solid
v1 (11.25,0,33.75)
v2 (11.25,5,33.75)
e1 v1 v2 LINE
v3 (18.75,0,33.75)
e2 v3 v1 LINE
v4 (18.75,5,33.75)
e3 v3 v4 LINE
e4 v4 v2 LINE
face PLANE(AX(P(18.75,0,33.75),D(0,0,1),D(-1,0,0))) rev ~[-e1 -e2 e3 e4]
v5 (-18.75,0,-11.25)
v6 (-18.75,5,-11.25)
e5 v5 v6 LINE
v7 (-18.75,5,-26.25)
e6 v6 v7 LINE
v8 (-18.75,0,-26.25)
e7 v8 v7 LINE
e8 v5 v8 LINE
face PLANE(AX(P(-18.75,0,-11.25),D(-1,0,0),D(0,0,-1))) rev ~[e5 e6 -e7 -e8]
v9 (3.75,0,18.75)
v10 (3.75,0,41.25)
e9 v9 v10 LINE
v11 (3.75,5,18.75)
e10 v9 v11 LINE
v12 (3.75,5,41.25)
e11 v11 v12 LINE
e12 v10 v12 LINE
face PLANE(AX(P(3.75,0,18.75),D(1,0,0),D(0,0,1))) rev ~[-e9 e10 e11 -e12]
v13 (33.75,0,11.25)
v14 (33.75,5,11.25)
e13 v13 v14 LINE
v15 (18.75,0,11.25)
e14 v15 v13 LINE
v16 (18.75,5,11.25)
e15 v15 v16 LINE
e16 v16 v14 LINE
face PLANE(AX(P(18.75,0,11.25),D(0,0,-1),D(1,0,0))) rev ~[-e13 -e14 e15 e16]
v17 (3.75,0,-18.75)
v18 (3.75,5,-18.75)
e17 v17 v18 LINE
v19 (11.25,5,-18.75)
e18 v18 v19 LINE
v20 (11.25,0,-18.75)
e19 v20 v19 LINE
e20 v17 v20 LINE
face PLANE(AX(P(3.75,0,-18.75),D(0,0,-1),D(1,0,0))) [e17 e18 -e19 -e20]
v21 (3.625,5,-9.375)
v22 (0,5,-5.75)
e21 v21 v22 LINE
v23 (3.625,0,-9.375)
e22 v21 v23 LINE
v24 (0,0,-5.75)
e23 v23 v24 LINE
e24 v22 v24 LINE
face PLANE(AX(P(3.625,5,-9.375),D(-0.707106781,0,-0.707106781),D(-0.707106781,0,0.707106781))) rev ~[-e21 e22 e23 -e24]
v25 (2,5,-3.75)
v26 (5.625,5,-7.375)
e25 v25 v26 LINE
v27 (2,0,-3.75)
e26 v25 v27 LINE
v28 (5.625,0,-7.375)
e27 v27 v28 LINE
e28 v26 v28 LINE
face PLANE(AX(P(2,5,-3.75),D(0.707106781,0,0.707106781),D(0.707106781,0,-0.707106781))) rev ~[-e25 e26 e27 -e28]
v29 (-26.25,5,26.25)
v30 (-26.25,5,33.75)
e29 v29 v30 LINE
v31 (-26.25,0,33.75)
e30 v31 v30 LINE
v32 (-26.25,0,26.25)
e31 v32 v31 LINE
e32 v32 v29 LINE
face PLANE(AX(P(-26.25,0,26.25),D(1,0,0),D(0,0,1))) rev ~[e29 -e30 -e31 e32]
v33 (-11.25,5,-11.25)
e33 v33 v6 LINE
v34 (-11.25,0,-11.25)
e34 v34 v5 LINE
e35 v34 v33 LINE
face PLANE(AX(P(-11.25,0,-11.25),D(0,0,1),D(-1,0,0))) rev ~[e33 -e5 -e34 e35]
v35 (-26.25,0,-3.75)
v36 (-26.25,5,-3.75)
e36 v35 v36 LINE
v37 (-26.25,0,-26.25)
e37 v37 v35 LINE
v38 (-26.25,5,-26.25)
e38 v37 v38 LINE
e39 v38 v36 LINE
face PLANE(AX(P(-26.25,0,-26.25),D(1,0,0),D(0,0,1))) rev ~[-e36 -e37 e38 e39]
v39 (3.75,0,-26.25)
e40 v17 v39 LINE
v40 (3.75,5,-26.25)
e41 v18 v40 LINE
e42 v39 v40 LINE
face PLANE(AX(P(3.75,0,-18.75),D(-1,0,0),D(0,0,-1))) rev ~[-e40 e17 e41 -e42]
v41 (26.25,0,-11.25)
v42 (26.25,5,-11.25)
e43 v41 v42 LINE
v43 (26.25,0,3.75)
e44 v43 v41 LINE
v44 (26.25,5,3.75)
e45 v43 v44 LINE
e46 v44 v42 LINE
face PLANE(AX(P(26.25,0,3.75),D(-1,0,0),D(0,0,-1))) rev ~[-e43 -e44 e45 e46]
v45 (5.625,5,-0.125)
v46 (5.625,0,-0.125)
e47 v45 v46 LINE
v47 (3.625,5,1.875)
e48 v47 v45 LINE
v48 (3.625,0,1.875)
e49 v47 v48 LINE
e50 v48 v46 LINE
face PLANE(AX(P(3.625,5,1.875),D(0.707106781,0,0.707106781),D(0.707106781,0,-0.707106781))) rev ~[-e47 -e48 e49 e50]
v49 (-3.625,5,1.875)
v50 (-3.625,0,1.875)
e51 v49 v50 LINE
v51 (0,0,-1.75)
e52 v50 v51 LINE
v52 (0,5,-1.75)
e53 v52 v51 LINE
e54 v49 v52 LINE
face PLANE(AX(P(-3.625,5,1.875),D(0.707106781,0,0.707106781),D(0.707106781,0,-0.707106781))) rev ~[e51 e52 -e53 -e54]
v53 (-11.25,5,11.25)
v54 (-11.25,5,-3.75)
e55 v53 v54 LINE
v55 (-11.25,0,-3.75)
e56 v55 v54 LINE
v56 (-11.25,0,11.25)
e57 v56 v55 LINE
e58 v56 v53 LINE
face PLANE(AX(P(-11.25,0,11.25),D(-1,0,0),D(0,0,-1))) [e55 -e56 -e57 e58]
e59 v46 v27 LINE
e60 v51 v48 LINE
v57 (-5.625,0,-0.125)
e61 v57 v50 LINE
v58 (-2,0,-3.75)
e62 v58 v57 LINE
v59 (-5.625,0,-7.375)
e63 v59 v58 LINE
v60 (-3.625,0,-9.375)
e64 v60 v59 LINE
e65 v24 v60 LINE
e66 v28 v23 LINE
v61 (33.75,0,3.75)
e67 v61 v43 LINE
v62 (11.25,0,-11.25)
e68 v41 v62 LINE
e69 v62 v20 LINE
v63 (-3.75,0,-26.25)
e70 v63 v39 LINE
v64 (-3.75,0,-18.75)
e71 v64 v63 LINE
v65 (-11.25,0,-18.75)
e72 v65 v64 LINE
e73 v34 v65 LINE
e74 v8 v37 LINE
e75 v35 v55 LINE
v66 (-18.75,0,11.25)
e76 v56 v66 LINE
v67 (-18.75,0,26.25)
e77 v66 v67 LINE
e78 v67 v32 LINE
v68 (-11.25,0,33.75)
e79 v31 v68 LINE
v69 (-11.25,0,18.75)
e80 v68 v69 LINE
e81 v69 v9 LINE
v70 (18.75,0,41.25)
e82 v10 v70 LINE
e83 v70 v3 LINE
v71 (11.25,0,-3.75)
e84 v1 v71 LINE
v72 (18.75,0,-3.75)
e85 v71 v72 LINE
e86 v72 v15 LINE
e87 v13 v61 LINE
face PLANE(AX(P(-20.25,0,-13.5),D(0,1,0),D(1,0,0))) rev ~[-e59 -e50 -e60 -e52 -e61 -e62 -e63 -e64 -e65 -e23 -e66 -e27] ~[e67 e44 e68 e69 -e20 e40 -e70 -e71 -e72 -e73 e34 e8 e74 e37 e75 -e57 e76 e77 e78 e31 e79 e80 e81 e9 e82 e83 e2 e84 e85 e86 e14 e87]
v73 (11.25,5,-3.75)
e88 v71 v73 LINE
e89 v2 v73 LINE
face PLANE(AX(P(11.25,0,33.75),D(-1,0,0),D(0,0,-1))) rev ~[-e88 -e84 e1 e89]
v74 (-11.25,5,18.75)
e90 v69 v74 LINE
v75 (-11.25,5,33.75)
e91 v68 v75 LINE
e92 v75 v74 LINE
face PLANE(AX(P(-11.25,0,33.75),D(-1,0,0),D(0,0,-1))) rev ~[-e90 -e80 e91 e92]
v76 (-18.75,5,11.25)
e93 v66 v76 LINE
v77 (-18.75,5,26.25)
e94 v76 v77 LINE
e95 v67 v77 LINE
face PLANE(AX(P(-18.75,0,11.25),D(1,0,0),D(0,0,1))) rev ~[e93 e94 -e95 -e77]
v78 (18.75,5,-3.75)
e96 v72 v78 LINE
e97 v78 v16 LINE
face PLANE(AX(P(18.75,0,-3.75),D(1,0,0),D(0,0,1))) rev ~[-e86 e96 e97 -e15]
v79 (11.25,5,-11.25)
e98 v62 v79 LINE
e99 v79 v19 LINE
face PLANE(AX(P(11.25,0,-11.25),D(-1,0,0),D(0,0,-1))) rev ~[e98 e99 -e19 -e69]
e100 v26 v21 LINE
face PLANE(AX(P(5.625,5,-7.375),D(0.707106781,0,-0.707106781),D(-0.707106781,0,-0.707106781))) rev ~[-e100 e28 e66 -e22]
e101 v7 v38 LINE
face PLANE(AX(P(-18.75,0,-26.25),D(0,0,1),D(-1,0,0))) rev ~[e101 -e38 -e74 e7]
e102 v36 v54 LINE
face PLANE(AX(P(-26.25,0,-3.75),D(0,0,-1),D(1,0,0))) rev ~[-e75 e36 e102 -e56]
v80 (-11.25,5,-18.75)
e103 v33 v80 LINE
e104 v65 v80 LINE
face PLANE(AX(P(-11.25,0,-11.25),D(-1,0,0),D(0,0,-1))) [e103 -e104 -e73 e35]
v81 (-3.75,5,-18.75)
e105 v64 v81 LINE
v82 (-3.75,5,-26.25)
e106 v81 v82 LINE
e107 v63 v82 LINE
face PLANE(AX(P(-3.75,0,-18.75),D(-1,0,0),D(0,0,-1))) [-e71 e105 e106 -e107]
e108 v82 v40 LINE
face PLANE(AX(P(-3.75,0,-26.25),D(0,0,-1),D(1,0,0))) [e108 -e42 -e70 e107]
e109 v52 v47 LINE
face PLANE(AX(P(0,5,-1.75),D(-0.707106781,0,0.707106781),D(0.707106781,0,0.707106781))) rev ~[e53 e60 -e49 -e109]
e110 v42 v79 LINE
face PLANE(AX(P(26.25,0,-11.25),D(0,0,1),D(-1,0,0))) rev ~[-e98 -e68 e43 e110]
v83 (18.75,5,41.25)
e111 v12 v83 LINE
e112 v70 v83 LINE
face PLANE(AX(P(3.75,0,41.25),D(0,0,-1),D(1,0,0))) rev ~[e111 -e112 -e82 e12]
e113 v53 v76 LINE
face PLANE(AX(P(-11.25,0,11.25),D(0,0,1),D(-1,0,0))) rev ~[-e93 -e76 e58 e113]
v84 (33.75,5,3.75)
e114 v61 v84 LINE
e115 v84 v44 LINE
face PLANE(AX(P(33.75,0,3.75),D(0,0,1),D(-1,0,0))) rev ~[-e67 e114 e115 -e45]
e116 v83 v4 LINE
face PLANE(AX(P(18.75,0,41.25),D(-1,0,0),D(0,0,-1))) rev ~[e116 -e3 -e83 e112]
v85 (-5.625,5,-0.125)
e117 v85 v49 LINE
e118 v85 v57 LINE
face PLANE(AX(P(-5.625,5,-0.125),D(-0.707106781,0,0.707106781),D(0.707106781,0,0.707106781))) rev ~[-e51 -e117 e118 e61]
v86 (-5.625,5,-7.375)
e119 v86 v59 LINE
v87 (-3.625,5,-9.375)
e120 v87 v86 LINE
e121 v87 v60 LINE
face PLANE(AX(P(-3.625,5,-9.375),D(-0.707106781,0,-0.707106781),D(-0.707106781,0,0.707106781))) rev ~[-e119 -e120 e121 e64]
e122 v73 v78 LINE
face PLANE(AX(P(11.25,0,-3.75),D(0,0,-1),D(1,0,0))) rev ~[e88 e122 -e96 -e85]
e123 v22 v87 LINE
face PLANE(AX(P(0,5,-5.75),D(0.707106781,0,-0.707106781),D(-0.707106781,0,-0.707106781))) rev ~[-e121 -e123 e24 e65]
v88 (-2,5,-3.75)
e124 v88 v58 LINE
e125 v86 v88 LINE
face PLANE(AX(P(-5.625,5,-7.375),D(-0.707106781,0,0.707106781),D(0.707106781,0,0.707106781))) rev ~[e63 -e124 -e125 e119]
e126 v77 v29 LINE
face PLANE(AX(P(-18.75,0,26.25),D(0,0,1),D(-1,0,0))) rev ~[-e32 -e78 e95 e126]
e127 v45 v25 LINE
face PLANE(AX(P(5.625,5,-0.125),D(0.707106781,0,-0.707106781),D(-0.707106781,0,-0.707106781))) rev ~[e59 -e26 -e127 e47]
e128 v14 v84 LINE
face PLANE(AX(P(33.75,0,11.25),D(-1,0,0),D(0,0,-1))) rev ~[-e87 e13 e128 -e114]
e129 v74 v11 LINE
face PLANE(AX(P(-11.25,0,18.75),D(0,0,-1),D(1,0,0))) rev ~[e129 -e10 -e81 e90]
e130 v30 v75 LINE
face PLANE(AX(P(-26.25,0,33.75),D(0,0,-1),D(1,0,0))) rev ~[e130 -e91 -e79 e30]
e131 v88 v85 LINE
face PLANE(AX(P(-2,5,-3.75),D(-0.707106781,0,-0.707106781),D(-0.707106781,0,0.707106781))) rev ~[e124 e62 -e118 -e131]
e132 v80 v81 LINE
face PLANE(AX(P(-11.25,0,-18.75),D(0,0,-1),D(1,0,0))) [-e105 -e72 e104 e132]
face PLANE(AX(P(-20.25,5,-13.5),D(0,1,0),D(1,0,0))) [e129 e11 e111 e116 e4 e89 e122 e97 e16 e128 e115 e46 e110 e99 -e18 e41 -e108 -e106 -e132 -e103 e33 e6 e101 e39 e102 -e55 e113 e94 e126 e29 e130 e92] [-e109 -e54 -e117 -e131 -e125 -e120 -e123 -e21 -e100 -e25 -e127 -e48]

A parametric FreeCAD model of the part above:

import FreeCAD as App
import Part
import Sketcher


def add_polygon(sketch, points):
    """Adds a closed chain of lines whose ends are joined by coincident constraints."""
    first, n = sketch.GeometryCount, len(points)
    for a, b in zip(points, points[1:] + points[:1]):
        sketch.addGeometry(Part.LineSegment(App.Vector(*a, 0), App.Vector(*b, 0)), False)
    for i in range(n):
        sketch.addConstraint(Sketcher.Constraint("Coincident", first + i, 2, first + (i + 1) % n, 1))

doc = App.newDocument("Part")
body = doc.addObject("PartDesign::Body", "Body")

sketch1 = body.newObject("Sketcher::SketchObject", "Sketch")
sketch1.AttachmentSupport = (doc.getObject("XZ_Plane"), [""])
sketch1.MapMode = "FlatFace"
add_polygon(sketch1, [(-11, -11), (-19, -11), (-19, -26), (-26, -26), (-26, -4), (-11, -4), (-11, 11), (-19, 11), (-19, 26), (-26, 26), (-26, 34), (-11, 34), (-11, 19), (4, 19), (4, 41), (19, 41), (19, 34), (11, 34), (11, -4), (19, -4), (19, 11), (34, 11), (34, 4), (26, 4), (26, -11), (11, -11), (11, -19), (4, -19), (4, -26), (-4, -26), (-4, -19), (-11, -19)])
sketch1.addConstraint(Sketcher.Constraint("Horizontal", 0))
sketch1.addConstraint(Sketcher.Constraint("Vertical", 1))
sketch1.addConstraint(Sketcher.Constraint("Horizontal", 2))
sketch1.addConstraint(Sketcher.Constraint("Vertical", 3))
sketch1.addConstraint(Sketcher.Constraint("Horizontal", 4))
sketch1.addConstraint(Sketcher.Constraint("Vertical", 5))
sketch1.addConstraint(Sketcher.Constraint("Horizontal", 6))
sketch1.addConstraint(Sketcher.Constraint("Vertical", 7))
sketch1.addConstraint(Sketcher.Constraint("Horizontal", 8))
sketch1.addConstraint(Sketcher.Constraint("Vertical", 9))
sketch1.addConstraint(Sketcher.Constraint("Horizontal", 10))
sketch1.addConstraint(Sketcher.Constraint("Vertical", 11))
sketch1.addConstraint(Sketcher.Constraint("Horizontal", 12))
sketch1.addConstraint(Sketcher.Constraint("Vertical", 13))
sketch1.addConstraint(Sketcher.Constraint("Horizontal", 14))
sketch1.addConstraint(Sketcher.Constraint("Vertical", 15))
sketch1.addConstraint(Sketcher.Constraint("Horizontal", 16))
sketch1.addConstraint(Sketcher.Constraint("Vertical", 17))
sketch1.addConstraint(Sketcher.Constraint("Horizontal", 18))
sketch1.addConstraint(Sketcher.Constraint("Vertical", 19))
sketch1.addConstraint(Sketcher.Constraint("Horizontal", 20))
sketch1.addConstraint(Sketcher.Constraint("Vertical", 21))
sketch1.addConstraint(Sketcher.Constraint("Horizontal", 22))
sketch1.addConstraint(Sketcher.Constraint("Vertical", 23))
sketch1.addConstraint(Sketcher.Constraint("Horizontal", 24))
sketch1.addConstraint(Sketcher.Constraint("Vertical", 25))
sketch1.addConstraint(Sketcher.Constraint("Horizontal", 26))
sketch1.addConstraint(Sketcher.Constraint("Vertical", 27))
sketch1.addConstraint(Sketcher.Constraint("Horizontal", 28))
sketch1.addConstraint(Sketcher.Constraint("Vertical", 29))
sketch1.addConstraint(Sketcher.Constraint("Horizontal", 30))
sketch1.addConstraint(Sketcher.Constraint("Vertical", 31))
sketch1.addConstraint(Sketcher.Constraint("Symmetric", 0, 2, 19, 2, -1, 1))
sketch1.addConstraint(Sketcher.Constraint("Symmetric", 3, 2, 22, 2, -1, 1))
sketch1.addConstraint(Sketcher.Constraint("Symmetric", 5, 2, 24, 2, -1, 1))
sketch1.addConstraint(Sketcher.Constraint("Symmetric", 11, 2, 25, 2, -1, 1))
sketch1.addConstraint(Sketcher.Constraint("Symmetric", 12, 2, 29, 2, -1, 1))
sketch1.addConstraint(Sketcher.Constraint("Symmetric", 10, 2, 16, 2, -2))
sketch1.addConstraint(Sketcher.Constraint("Symmetric", 6, 2, 19, 2, -2))
sketch1.addConstraint(Sketcher.Constraint("Symmetric", 2, 2, 8, 2, -1))
sketch1.addConstraint(Sketcher.Constraint("Horizontal", 4, 2, 17, 2))
sketch1.addConstraint(Sketcher.Constraint("Horizontal", 2, 2, 27, 2))
sketch1.addConstraint(Sketcher.Constraint("Vertical", 15, 2, 18, 2))
sketch1.addConstraint(Sketcher.Constraint("Vertical", 13, 2, 26, 2))
sketch1.addConstraint(Sketcher.Constraint("Vertical", 11, 2, 30, 2))
sketch1.addConstraint(Sketcher.Constraint("Equal", 0, 2))
sketch1.addConstraint(Sketcher.Constraint("Equal", 10, 12))
sketch1.addConstraint(Sketcher.Constraint("Equal", 12, 14))
sketch1.addConstraint(Sketcher.Constraint("Equal", 14, 20))
sketch1.addConstraint(Sketcher.Constraint("Equal", 24, 1))
sketch1.addConstraint(Sketcher.Constraint("Equal", 1, 5))
sketch1.addConstraint(Sketcher.Constraint("Equal", 30, 9))
sketch1.addConstraint(Sketcher.Constraint("Equal", 7, 11))
sketch1.addConstraint(Sketcher.Constraint("Equal", 3, 13))
sketch1.addConstraint(Sketcher.Constraint("Equal", 9, 15))
sketch1.addConstraint(Sketcher.Constraint("DistanceX", 4, 1, 4, 2, 15.0))
pad1 = body.newObject("PartDesign::Pad", "Pad")
pad1.Profile = sketch1
pad1.Length = 5
pad1.Reversed = True

sketch2 = body.newObject("Sketcher::SketchObject", "Sketch001")
sketch2.AttachmentSupport = (doc.getObject("XZ_Plane"), [""])
sketch2.MapMode = "FlatFace"
sketch2.AttachmentOffset = App.Placement(App.Vector(0, 0, -5), App.Rotation())
add_polygon(sketch2, [(0, -5.8), (-3.6, -9.4), (-5.6, -7.4), (-2, -3.8), (-5.6, -0.1), (-3.6, 1.9), (0, -1.8), (3.6, 1.9), (5.6, -0.1), (2, -3.8), (5.6, -7.4), (3.6, -9.4)])
sketch2.addConstraint(Sketcher.Constraint("Symmetric", 4, 2, 6, 2, -2))
sketch2.addConstraint(Sketcher.Constraint("Symmetric", 3, 2, 7, 2, -2))
sketch2.addConstraint(Sketcher.Constraint("Symmetric", 2, 2, 8, 2, -2))
sketch2.addConstraint(Sketcher.Constraint("Symmetric", 1, 2, 9, 2, -2))
sketch2.addConstraint(Sketcher.Constraint("Symmetric", 0, 2, 10, 2, -2))
sketch2.addConstraint(Sketcher.Constraint("PointOnObject", 5, 2, -2))
sketch2.addConstraint(Sketcher.Constraint("PointOnObject", 11, 2, -2))
sketch2.addConstraint(Sketcher.Constraint("Perpendicular", 0, 1))
sketch2.addConstraint(Sketcher.Constraint("Perpendicular", 1, 2))
sketch2.addConstraint(Sketcher.Constraint("Perpendicular", 2, 3))
sketch2.addConstraint(Sketcher.Constraint("Perpendicular", 3, 4))
sketch2.addConstraint(Sketcher.Constraint("Perpendicular", 4, 5))
sketch2.addConstraint(Sketcher.Constraint("Perpendicular", 5, 6))
sketch2.addConstraint(Sketcher.Constraint("Vertical", 1, 2, 3, 2))
sketch2.addConstraint(Sketcher.Constraint("Vertical", 0, 2, 4, 2))
sketch2.addConstraint(Sketcher.Constraint("Equal", 0, 2))
sketch2.addConstraint(Sketcher.Constraint("DistanceX", 2, 2, -1, 1, 2.0))
sketch2.addConstraint(Sketcher.Constraint("DistanceY", 2, 2, -1, 1, 3.75))
sketch2.addConstraint(Sketcher.Constraint("DistanceY", 1, 2, 3, 2, 7.25))
pocket1 = body.newObject("PartDesign::Pocket", "Pocket")
pocket1.Profile = sketch2
pocket1.Type = "ThroughAll"
pocket1.Reversed = True

doc.recompute()
